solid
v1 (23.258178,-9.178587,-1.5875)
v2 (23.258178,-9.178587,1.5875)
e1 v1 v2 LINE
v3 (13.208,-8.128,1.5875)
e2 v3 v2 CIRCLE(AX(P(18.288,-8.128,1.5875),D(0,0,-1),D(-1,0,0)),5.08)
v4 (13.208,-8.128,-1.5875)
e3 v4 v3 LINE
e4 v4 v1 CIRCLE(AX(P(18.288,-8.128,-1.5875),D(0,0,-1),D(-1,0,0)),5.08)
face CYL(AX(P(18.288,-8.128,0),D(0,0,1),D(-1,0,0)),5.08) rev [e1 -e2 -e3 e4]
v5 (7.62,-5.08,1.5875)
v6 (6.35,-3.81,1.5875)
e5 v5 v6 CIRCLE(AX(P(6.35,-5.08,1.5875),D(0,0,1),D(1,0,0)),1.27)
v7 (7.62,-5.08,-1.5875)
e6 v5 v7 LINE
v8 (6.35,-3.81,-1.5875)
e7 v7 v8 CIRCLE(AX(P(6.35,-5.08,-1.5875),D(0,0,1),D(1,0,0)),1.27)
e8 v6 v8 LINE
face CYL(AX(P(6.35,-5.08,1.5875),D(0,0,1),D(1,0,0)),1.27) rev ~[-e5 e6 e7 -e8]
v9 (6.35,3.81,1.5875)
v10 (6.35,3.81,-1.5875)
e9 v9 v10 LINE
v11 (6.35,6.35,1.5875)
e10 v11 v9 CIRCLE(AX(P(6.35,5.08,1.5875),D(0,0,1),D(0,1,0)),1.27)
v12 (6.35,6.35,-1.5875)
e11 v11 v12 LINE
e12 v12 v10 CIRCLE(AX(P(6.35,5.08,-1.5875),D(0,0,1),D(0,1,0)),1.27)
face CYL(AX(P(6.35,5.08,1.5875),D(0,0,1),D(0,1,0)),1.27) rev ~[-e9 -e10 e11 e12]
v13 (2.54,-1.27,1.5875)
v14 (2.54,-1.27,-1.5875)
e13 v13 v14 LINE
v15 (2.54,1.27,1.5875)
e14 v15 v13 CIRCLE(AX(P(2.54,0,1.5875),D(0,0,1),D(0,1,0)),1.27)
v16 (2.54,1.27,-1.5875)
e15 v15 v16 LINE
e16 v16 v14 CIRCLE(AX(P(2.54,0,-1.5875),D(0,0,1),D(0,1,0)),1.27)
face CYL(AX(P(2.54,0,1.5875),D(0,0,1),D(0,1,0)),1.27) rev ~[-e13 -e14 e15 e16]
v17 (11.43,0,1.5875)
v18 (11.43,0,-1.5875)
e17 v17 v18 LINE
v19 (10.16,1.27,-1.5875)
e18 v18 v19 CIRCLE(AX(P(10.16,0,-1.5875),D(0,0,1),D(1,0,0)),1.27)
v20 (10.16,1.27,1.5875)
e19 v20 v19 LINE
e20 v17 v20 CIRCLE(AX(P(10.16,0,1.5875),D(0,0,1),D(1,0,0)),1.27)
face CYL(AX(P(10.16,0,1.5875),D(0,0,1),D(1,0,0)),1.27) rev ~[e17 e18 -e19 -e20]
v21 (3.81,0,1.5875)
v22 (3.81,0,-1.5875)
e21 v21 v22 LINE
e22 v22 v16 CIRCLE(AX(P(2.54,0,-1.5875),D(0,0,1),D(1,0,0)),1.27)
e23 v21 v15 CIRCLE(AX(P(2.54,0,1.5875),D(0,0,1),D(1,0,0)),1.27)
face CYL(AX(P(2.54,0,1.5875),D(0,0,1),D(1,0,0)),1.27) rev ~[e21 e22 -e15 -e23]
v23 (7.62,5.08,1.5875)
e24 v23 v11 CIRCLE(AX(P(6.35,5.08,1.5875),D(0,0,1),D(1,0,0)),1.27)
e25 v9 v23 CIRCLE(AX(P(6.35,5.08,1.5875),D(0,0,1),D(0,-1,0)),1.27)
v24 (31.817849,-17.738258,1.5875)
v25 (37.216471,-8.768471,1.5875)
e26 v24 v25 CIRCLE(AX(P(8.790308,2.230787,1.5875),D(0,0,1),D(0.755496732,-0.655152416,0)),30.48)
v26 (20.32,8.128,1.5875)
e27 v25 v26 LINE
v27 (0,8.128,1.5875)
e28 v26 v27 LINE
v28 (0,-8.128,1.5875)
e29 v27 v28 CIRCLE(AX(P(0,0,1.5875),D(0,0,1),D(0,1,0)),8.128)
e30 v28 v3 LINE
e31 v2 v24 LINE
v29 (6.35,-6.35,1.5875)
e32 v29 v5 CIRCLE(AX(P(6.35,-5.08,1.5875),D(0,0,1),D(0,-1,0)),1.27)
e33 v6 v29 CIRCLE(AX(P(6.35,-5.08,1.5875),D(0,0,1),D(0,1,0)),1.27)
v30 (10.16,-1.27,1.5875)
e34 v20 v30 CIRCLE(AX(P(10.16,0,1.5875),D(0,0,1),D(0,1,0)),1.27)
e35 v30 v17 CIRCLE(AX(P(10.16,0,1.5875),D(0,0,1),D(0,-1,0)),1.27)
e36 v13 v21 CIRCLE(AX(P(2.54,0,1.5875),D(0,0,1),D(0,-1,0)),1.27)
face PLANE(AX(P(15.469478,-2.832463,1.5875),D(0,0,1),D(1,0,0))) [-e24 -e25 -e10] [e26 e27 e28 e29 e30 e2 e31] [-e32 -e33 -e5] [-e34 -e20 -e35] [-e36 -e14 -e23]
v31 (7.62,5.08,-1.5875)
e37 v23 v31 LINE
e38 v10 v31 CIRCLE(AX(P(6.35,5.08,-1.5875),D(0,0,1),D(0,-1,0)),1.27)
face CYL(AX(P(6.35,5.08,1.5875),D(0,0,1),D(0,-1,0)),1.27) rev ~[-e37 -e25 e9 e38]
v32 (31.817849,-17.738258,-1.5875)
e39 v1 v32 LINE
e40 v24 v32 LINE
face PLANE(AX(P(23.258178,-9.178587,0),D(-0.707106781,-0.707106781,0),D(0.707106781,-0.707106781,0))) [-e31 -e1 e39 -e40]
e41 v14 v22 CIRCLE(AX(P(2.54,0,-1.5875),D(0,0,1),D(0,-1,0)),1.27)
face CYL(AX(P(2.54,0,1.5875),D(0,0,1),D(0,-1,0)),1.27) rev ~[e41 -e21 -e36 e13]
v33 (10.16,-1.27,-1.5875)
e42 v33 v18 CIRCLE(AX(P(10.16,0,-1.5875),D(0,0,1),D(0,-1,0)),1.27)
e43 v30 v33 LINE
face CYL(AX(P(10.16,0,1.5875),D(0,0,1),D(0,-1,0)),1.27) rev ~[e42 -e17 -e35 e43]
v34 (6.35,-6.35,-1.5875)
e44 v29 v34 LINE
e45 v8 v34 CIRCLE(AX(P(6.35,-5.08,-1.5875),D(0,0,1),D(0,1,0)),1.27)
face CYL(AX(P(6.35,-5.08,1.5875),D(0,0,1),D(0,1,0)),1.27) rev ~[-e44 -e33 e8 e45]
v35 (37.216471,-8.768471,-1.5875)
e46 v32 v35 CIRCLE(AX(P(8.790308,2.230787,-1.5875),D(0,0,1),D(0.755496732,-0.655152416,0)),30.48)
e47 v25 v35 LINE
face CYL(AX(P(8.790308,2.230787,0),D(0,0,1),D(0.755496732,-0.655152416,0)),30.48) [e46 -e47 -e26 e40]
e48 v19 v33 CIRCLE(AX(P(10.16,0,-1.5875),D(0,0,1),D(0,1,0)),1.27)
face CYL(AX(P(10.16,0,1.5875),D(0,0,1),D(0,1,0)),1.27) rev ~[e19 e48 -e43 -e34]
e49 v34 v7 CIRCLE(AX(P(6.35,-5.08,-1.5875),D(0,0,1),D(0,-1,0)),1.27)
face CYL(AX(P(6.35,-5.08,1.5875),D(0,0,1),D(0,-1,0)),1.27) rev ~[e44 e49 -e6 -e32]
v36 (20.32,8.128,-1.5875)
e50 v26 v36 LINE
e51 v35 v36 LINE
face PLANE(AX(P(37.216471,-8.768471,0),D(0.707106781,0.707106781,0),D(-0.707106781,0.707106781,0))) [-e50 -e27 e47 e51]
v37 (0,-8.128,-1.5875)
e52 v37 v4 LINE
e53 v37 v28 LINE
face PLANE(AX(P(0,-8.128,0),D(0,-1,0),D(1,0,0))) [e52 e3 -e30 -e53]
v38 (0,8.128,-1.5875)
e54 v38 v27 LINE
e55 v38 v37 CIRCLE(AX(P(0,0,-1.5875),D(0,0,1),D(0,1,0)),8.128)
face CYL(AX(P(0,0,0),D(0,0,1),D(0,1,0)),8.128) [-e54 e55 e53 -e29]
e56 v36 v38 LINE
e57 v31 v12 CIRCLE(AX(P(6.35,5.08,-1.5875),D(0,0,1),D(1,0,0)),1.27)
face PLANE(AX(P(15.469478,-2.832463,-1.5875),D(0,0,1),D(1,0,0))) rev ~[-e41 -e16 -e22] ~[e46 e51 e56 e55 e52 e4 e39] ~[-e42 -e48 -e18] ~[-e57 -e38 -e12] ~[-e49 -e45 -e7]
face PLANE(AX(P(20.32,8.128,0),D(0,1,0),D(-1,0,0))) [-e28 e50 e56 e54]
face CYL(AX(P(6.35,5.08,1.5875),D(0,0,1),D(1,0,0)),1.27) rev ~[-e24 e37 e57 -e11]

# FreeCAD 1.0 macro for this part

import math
import FreeCAD as App
import Part
import Sketcher
Q = App.Units.Quantity

doc = App.newDocument("Part")
body = doc.addObject("PartDesign::Body", "Body")

# Sketch on XY plane
sketch1 = body.newObject("Sketcher::SketchObject", "Sketch")
sketch1.AttachmentSupport = (doc.getObject("XY_Plane"), [""])
sketch1.MapMode = "FlatFace"
sketch1.addGeometry(Part.LineSegment(App.Vector(20, 8, 0), App.Vector(0, 8, 0)), False)
sketch1.addGeometry(Part.ArcOfCircle(Part.Circle(App.Vector(0, 0, 0), App.Vector(0, 0, 1), 8), math.radians(90), math.radians(270)), False)
sketch1.addGeometry(Part.LineSegment(App.Vector(0, -8, 0), App.Vector(13, -8, 0)), False)
sketch1.addGeometry(Part.ArcOfCircle(Part.Circle(App.Vector(18, -8, 0), App.Vector(0, 0, 1), 5), math.radians(-12), math.radians(180)), False)
sketch1.addGeometry(Part.LineSegment(App.Vector(23, -9, 0), App.Vector(32, -18, 0)), False)
sketch1.addGeometry(Part.ArcOfCircle(Part.Circle(App.Vector(9, 2, 0), App.Vector(0, 0, 1), 30), math.radians(-40.93), math.radians(-21.15)), False)
sketch1.addGeometry(Part.LineSegment(App.Vector(37, -9, 0), App.Vector(20, 8, 0)), False)
sketch1.addConstraint(Sketcher.Constraint("Tangent", 0, 2, 1, 1))
sketch1.addConstraint(Sketcher.Constraint("Tangent", 1, 2, 2, 1))
sketch1.addConstraint(Sketcher.Constraint("Coincident", 2, 2, 3, 2))
sketch1.addConstraint(Sketcher.Constraint("Coincident", 3, 1, 4, 1))
sketch1.addConstraint(Sketcher.Constraint("Coincident", 4, 2, 5, 1))
sketch1.addConstraint(Sketcher.Constraint("Coincident", 5, 2, 6, 1))
sketch1.addConstraint(Sketcher.Constraint("Coincident", 6, 2, 0, 1))
sketch1.addConstraint(Sketcher.Constraint("Horizontal", 0))
sketch1.addConstraint(Sketcher.Constraint("Horizontal", 2))
sketch1.addConstraint(Sketcher.Constraint("Coincident", 1, 3, -1, 1))
sketch1.addConstraint(Sketcher.Constraint("Parallel", 4, 6))
sketch1.addConstraint(Sketcher.Constraint("Horizontal", 3, 3, 1, 2))
sketch1.addConstraint(Sketcher.Constraint("Radius", 3, Q("0.2 in")))
sketch1.addConstraint(Sketcher.Constraint("Radius", 5, Q("1.2 in")))
sketch1.addConstraint(Sketcher.Constraint("Radius", 1, Q("0.32 in")))
sketch1.addConstraint(Sketcher.Constraint("DistanceX", 0, 2, 0, 1, Q("0.8 in")))
sketch1.addConstraint(Sketcher.Constraint("Angle", 4, Q("-45 deg")))
sketch1.addConstraint(Sketcher.Constraint("DistanceX", 2, 1, 2, 2, Q("0.52 in")))
sketch1.addConstraint(Sketcher.Constraint("Distance", 6, 23.895218))
sketch1.addConstraint(Sketcher.Constraint("DistanceX", -1, 1, 5, 3, 8.790308))
sketch1.addConstraint(Sketcher.Constraint("DistanceX", -1, 1, 4, 2, 31.817849))
pad1 = body.newObject("PartDesign::Pad", "Pad")
pad1.Profile = sketch1
pad1.Length = Q("0.125 in")
pad1.Midplane = True

# Sketch on XY plane
sketch2 = body.newObject("Sketcher::SketchObject", "Sketch001")
sketch2.AttachmentSupport = (doc.getObject("XY_Plane"), [""])
sketch2.MapMode = "FlatFace"
sketch2.AttachmentOffset = App.Placement(App.Vector(0, 0, 0.0625 * 25.4), App.Rotation())
sketch2.addGeometry(Part.ArcOfCircle(Part.Circle(App.Vector(10.2, 0, 0), App.Vector(0, 0, 1), 1.3), math.radians(-90), math.radians(0)), False)
sketch2.addGeometry(Part.ArcOfCircle(Part.Circle(App.Vector(10.2, 0, 0), App.Vector(0, 0, 1), 1.3), math.radians(0), math.radians(90)), False)
sketch2.addGeometry(Part.ArcOfCircle(Part.Circle(App.Vector(10.2, 0, 0), App.Vector(0, 0, 1), 1.3), math.radians(90), math.radians(270)), False)
sketch2.addGeometry(Part.ArcOfCircle(Part.Circle(App.Vector(6.3, 5.1, 0), App.Vector(0, 0, 1), 1.3), math.radians(-90), math.radians(0)), False)
sketch2.addGeometry(Part.ArcOfCircle(Part.Circle(App.Vector(6.3, 5.1, 0), App.Vector(0, 0, 1), 1.3), math.radians(0), math.radians(90)), False)
sketch2.addGeometry(Part.ArcOfCircle(Part.Circle(App.Vector(6.3, 5.1, 0), App.Vector(0, 0, 1), 1.3), math.radians(90), math.radians(270)), False)
sketch2.addGeometry(Part.ArcOfCircle(Part.Circle(App.Vector(2.5, 0, 0), App.Vector(0, 0, 1), 1.3), math.radians(-90), math.radians(0)), False)
sketch2.addGeometry(Part.ArcOfCircle(Part.Circle(App.Vector(2.5, 0, 0), App.Vector(0, 0, 1), 1.3), math.radians(0), math.radians(90)), False)
sketch2.addGeometry(Part.ArcOfCircle(Part.Circle(App.Vector(2.5, 0, 0), App.Vector(0, 0, 1), 1.3), math.radians(90), math.radians(270)), False)
sketch2.addGeometry(Part.ArcOfCircle(Part.Circle(App.Vector(6.3, -5.1, 0), App.Vector(0, 0, 1), 1.3), math.radians(90), math.radians(270)), False)
sketch2.addGeometry(Part.ArcOfCircle(Part.Circle(App.Vector(6.3, -5.1, 0), App.Vector(0, 0, 1), 1.3), math.radians(-90), math.radians(0)), False)
sketch2.addGeometry(Part.ArcOfCircle(Part.Circle(App.Vector(6.3, -5.1, 0), App.Vector(0, 0, 1), 1.3), math.radians(0), math.radians(90)), False)
sketch2.addConstraint(Sketcher.Constraint("Tangent", 0, 2, 1, 1))
sketch2.addConstraint(Sketcher.Constraint("Tangent", 1, 2, 2, 1))
sketch2.addConstraint(Sketcher.Constraint("Tangent", 2, 2, 0, 1))
sketch2.addConstraint(Sketcher.Constraint("Tangent", 3, 2, 4, 1))
sketch2.addConstraint(Sketcher.Constraint("Tangent", 4, 2, 5, 1))
sketch2.addConstraint(Sketcher.Constraint("Tangent", 5, 2, 3, 1))
sketch2.addConstraint(Sketcher.Constraint("Tangent", 6, 2, 7, 1))
sketch2.addConstraint(Sketcher.Constraint("Tangent", 7, 2, 8, 1))
sketch2.addConstraint(Sketcher.Constraint("Tangent", 8, 2, 6, 1))
sketch2.addConstraint(Sketcher.Constraint("Tangent", 9, 2, 10, 1))
sketch2.addConstraint(Sketcher.Constraint("Tangent", 10, 2, 11, 1))
sketch2.addConstraint(Sketcher.Constraint("Tangent", 11, 2, 9, 1))
sketch2.addConstraint(Sketcher.Constraint("Equal", 2, 3))
sketch2.addConstraint(Sketcher.Constraint("Equal", 5, 6))
sketch2.addConstraint(Sketcher.Constraint("Equal", 8, 9))
sketch2.addConstraint(Sketcher.Constraint("Symmetric", 3, 3, 9, 3, -1))
sketch2.addConstraint(Sketcher.Constraint("Symmetric", 1, 2, 2, 2, -1))
sketch2.addConstraint(Sketcher.Constraint("Symmetric", 7, 2, 8, 2, -1))
sketch2.addConstraint(Sketcher.Constraint("PointOnObject", 0, 2, -1))
sketch2.addConstraint(Sketcher.Constraint("PointOnObject", 6, 2, -1))
sketch2.addConstraint(Sketcher.Constraint("Horizontal", 5, 3, 3, 2))
sketch2.addConstraint(Sketcher.Constraint("Horizontal", 11, 3, 10, 2))
sketch2.addConstraint(Sketcher.Constraint("Vertical", 2, 3, 1, 2))
sketch2.addConstraint(Sketcher.Constraint("Vertical", 11, 3, 4, 2))
sketch2.addConstraint(Sketcher.Constraint("Vertical", 4, 2, 5, 2))
sketch2.addConstraint(Sketcher.Constraint("Vertical", 8, 3, 7, 2))
sketch2.addConstraint(Sketcher.Constraint("Vertical", 5, 2, 9, 2))
sketch2.addConstraint(Sketcher.Constraint("Vertical", 9, 2, 11, 2))
sketch2.addConstraint(Sketcher.Constraint("Radius", 0, Q("0.05 in")))
sketch2.addConstraint(Sketcher.Constraint("DistanceX", -1, 1, 0, 3, Q("0.4 in")))
sketch2.addConstraint(Sketcher.Constraint("DistanceY", -1, 1, 3, 3, Q("0.2 in")))
sketch2.addConstraint(Sketcher.Constraint("DistanceX", -1, 1, 6, 3, Q("0.1 in")))
sketch2.addConstraint(Sketcher.Constraint("DistanceX", -1, 1, 3, 2, Q("0.3 in")))
pocket1 = body.newObject("PartDesign::Pocket", "Pocket")
pocket1.Profile = sketch2
pocket1.Length = Q("1 in")

doc.recompute()
